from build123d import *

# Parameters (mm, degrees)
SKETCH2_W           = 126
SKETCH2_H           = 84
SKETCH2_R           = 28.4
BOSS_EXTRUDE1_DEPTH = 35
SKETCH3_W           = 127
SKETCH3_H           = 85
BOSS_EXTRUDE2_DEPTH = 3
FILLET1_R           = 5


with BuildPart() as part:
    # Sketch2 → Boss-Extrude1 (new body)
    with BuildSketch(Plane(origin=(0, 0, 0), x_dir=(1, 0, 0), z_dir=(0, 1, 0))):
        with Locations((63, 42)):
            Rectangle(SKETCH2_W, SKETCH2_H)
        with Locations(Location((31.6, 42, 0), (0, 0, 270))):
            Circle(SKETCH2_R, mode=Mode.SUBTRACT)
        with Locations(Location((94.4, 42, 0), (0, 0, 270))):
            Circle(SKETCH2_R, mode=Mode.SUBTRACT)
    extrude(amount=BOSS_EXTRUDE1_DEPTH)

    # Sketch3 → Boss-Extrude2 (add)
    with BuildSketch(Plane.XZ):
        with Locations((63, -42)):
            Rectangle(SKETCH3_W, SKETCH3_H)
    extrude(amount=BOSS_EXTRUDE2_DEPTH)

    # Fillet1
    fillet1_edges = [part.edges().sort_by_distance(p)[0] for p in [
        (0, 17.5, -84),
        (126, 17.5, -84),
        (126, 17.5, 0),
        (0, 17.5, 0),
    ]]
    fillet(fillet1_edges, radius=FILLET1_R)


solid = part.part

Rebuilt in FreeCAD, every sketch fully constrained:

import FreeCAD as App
import Part
import Sketcher
from FreeCAD import Vector
Q = App.Units.Quantity


def edges_at(feature, points):
    """Names of the edges that pass closest to the given points."""
    edges = feature.Shape.Edges
    near = lambda p: min(range(len(edges)), key=lambda i: edges[i].distToShape(Part.Vertex(*p))[0])
    return sorted({f"Edge{near(p) + 1}" for p in points})

doc = App.newDocument("Part")
body = doc.addObject("PartDesign::Body", "Body")

# Sketch on XZ plane
sketch1 = body.newObject("Sketcher::SketchObject", "Sketch")
sketch1.AttachmentSupport = (doc.getObject("XZ_Plane"), [""])
sketch1.MapMode = "FlatFace"
sketch1.addGeometry([
    Part.LineSegment(Vector(0, -84, 0), Vector(0, 0, 0)),  # 0
    Part.LineSegment(Vector(0, 0, 0), Vector(126, 0, 0)),  # 1
    Part.LineSegment(Vector(126, 0, 0), Vector(126, -84, 0)),  # 2
    Part.LineSegment(Vector(126, -84, 0), Vector(0, -84, 0)),  # 3
    Part.Circle(Vector(31.6, -42, 0), Vector(0, 0, 1), 28.4),  # 4
    Part.Circle(Vector(94.4, -42, 0), Vector(0, 0, 1), 28.4),  # 5
], False)
sketch1.addConstraint([
    Sketcher.Constraint("Coincident", 0, 2, 1, 1),
    Sketcher.Constraint("Coincident", 1, 2, 2, 1),
    Sketcher.Constraint("Coincident", 2, 2, 3, 1),
    Sketcher.Constraint("Coincident", 3, 2, 0, 1),
    Sketcher.Constraint("Vertical", 0),
    Sketcher.Constraint("Horizontal", 1),
    Sketcher.Constraint("Vertical", 2),
    Sketcher.Constraint("Horizontal", 3),
    Sketcher.Constraint("Coincident", 0, 2, -1, 1),
    Sketcher.Constraint("Equal", 4, 5),
    Sketcher.Constraint("Horizontal", 4, 3, 5, 3),
    Sketcher.Constraint("Diameter", 4, Q("56.8 mm")),
    Sketcher.Constraint("DistanceX", 1, 1, 1, 2, Q("126 mm")),
    Sketcher.Constraint("DistanceY", 0, 1, 0, 2, Q("84 mm")),
    Sketcher.Constraint("DistanceY", 4, 3, -1, 1, Q("42 mm")),
    Sketcher.Constraint("DistanceX", -1, 1, 4, 3, Q("31.6 mm")),
    Sketcher.Constraint("DistanceX", -1, 1, 5, 3, Q("94.4 mm")),
])
pad1 = body.newObject("PartDesign::Pad", "Pad")
pad1.Profile = sketch1
pad1.Length = 35
pad1.Reversed = True

# Sketch on XZ plane
sketch2 = body.newObject("Sketcher::SketchObject", "Sketch001")
sketch2.AttachmentSupport = (doc.getObject("XZ_Plane"), [""])
sketch2.MapMode = "FlatFace"
sketch2.addGeometry([
    Part.LineSegment(Vector(-0.5, 0.5, 0), Vector(-0.5, -84.5, 0)),
    Part.LineSegment(Vector(-0.5, -84.5, 0), Vector(126.5, -84.5, 0)),
    Part.LineSegment(Vector(126.5, -84.5, 0), Vector(126.5, 0.5, 0)),
    Part.LineSegment(Vector(126.5, 0.5, 0), Vector(-0.5, 0.5, 0)),
], False)
sketch2.addConstraint([
    Sketcher.Constraint("Coincident", 0, 2, 1, 1),
    Sketcher.Constraint("Coincident", 1, 2, 2, 1),
    Sketcher.Constraint("Coincident", 2, 2, 3, 1),
    Sketcher.Constraint("Coincident", 3, 2, 0, 1),
    Sketcher.Constraint("Vertical", 0),
    Sketcher.Constraint("Horizontal", 1),
    Sketcher.Constraint("Vertical", 2),
    Sketcher.Constraint("Horizontal", 3),
    Sketcher.Constraint("DistanceX", 1, 1, 1, 2, Q("127 mm")),
    Sketcher.Constraint("DistanceY", 0, 2, 0, 1, Q("85 mm")),
    Sketcher.Constraint("DistanceX", 0, 2, -1, 1, Q("0.5 mm")),
    Sketcher.Constraint("DistanceY", 0, 2, -1, 1, Q("84.5 mm")),
])
pad2 = body.newObject("PartDesign::Pad", "Pad001")
pad2.Profile = sketch2
pad2.Length = 3
doc.recompute()

fillet = body.newObject("PartDesign::Fillet", "Fillet")
fillet.Base = (pad2, edges_at(pad2, [
    (0, 17.5, -84),
    (126, 17.5, -84),
    (126, 17.5, 0),
    (0, 17.5, 0),
]))
fillet.Radius = 5

doc.recompute()
